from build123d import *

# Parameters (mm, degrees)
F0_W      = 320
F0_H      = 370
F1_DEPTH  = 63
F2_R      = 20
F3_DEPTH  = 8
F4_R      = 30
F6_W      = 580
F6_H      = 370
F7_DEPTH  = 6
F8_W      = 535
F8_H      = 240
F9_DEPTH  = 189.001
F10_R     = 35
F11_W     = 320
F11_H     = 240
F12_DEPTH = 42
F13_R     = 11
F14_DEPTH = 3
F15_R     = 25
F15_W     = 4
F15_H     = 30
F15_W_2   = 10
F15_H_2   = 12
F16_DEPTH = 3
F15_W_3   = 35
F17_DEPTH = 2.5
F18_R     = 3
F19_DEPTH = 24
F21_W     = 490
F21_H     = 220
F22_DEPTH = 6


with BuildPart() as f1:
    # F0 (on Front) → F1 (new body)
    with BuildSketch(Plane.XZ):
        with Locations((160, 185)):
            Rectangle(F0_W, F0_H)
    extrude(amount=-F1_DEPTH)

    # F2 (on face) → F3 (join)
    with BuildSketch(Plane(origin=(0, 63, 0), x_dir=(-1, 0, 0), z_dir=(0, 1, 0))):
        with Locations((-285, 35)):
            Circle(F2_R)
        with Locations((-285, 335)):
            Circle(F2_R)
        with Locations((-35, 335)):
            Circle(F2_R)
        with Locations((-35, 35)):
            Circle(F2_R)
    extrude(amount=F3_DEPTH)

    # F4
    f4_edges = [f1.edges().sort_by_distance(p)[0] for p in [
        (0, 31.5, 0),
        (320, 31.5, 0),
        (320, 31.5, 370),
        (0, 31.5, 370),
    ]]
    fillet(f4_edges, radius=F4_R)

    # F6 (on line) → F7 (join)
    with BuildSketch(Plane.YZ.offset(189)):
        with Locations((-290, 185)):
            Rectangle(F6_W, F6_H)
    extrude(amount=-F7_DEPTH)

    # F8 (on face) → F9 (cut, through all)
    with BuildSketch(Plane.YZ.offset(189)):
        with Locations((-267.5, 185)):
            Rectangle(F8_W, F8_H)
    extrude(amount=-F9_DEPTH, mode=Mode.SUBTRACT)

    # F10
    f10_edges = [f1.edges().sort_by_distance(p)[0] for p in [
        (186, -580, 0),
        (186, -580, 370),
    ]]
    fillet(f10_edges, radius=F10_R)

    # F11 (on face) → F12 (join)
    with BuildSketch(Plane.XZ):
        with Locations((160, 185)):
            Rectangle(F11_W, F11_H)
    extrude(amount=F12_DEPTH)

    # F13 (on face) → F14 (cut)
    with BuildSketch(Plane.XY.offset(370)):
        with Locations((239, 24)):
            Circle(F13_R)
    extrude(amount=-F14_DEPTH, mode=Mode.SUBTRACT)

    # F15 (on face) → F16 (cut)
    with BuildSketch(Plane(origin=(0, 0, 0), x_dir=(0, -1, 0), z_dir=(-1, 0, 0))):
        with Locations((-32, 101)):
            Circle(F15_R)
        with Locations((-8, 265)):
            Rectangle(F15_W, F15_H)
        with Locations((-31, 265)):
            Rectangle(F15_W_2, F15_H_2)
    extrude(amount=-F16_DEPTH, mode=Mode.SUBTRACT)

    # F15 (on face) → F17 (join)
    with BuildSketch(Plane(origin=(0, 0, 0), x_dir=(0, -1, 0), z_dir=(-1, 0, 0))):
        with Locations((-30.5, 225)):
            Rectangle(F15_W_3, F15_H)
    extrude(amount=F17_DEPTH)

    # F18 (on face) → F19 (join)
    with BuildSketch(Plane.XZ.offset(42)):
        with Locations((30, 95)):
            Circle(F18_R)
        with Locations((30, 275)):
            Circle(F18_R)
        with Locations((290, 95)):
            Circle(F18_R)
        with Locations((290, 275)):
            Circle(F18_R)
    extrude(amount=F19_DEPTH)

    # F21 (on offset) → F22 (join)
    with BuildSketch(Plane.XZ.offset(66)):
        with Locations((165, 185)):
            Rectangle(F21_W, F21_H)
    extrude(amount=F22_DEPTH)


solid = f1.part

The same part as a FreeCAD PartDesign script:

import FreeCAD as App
import Part
import Sketcher

V = App.Vector


def edges_at(feature, points):
    """Names of the edges that pass closest to the given points."""
    edges = feature.Shape.Edges
    near = lambda p: min(range(len(edges)), key=lambda i: edges[i].distToShape(Part.Vertex(*p))[0])
    return sorted({f"Edge{near(p) + 1}" for p in points})

doc = App.newDocument("Part")
body = doc.addObject("PartDesign::Body", "Body")

sketch1 = body.newObject("Sketcher::SketchObject", "Sketch")
sketch1.AttachmentSupport = (doc.getObject("XZ_Plane"), [""])
sketch1.MapMode = "FlatFace"
sketch1.addGeometry(Part.LineSegment(V(0, 370, 0), V(0, 0, 0)), False)
sketch1.addGeometry(Part.LineSegment(V(0, 0, 0), V(320, 0, 0)), False)
sketch1.addGeometry(Part.LineSegment(V(320, 0, 0), V(320, 370, 0)), False)
sketch1.addGeometry(Part.LineSegment(V(320, 370, 0), V(0, 370, 0)), False)
sketch1.addConstraint(Sketcher.Constraint("Coincident", 0, 2, 1, 1))
sketch1.addConstraint(Sketcher.Constraint("Coincident", 1, 2, 2, 1))
sketch1.addConstraint(Sketcher.Constraint("Coincident", 2, 2, 3, 1))
sketch1.addConstraint(Sketcher.Constraint("Coincident", 3, 2, 0, 1))
sketch1.addConstraint(Sketcher.Constraint("Vertical", 0))
sketch1.addConstraint(Sketcher.Constraint("Horizontal", 1))
sketch1.addConstraint(Sketcher.Constraint("Vertical", 2))
sketch1.addConstraint(Sketcher.Constraint("Horizontal", 3))
sketch1.addConstraint(Sketcher.Constraint("Coincident", 0, 2, -1, 1))
sketch1.addConstraint(Sketcher.Constraint("DistanceX", 1, 1, 1, 2, 320.0))
sketch1.addConstraint(Sketcher.Constraint("DistanceY", 0, 2, 0, 1, 370.0))
pad1 = body.newObject("PartDesign::Pad", "Pad")
pad1.Profile = sketch1
pad1.Length = 63
pad1.Reversed = True

sketch2 = body.newObject("Sketcher::SketchObject", "Sketch001")
sketch2.AttachmentSupport = (doc.getObject("XZ_Plane"), [""])
sketch2.MapMode = "FlatFace"
sketch2.AttachmentOffset = App.Placement(V(0, 0, -63), App.Rotation())
sketch2.addGeometry(Part.Circle(V(285, 35, 0), V(0, 0, 1), 20), False)
sketch2.addGeometry(Part.Circle(V(285, 335, 0), V(0, 0, 1), 20), False)
sketch2.addGeometry(Part.Circle(V(35, 335, 0), V(0, 0, 1), 20), False)
sketch2.addGeometry(Part.Circle(V(35, 35, 0), V(0, 0, 1), 20), False)
sketch2.addConstraint(Sketcher.Constraint("Equal", 0, 1))
sketch2.addConstraint(Sketcher.Constraint("Equal", 1, 2))
sketch2.addConstraint(Sketcher.Constraint("Equal", 2, 3))
sketch2.addConstraint(Sketcher.Constraint("Horizontal", 1, 3, 2, 3))
sketch2.addConstraint(Sketcher.Constraint("Horizontal", 0, 3, 3, 3))
sketch2.addConstraint(Sketcher.Constraint("Vertical", 0, 3, 1, 3))
sketch2.addConstraint(Sketcher.Constraint("Vertical", 2, 3, 3, 3))
sketch2.addConstraint(Sketcher.Constraint("Diameter", 0, 40.0))
sketch2.addConstraint(Sketcher.Constraint("DistanceX", -1, 1, 0, 3, 285.0))
sketch2.addConstraint(Sketcher.Constraint("DistanceY", -1, 1, 0, 3, 35.0))
sketch2.addConstraint(Sketcher.Constraint("DistanceY", -1, 1, 1, 3, 335.0))
sketch2.addConstraint(Sketcher.Constraint("DistanceX", -1, 1, 2, 3, 35.0))
pad2 = body.newObject("PartDesign::Pad", "Pad001")
pad2.Profile = sketch2
pad2.Length = 8
pad2.Reversed = True
doc.recompute()

fillet = body.newObject("PartDesign::Fillet", "Fillet")
fillet.Base = (pad2, edges_at(pad2, [
    (0, 31.5, 0),
    (320, 31.5, 0),
    (320, 31.5, 370),
    (0, 31.5, 370),
]))
fillet.Radius = 30

sketch3 = body.newObject("Sketcher::SketchObject", "Sketch002")
sketch3.AttachmentSupport = (doc.getObject("YZ_Plane"), [""])
sketch3.MapMode = "FlatFace"
sketch3.AttachmentOffset = App.Placement(V(0, 0, 189), App.Rotation())
sketch3.addGeometry(Part.LineSegment(V(-580, 370, 0), V(-580, 0, 0)), False)
sketch3.addGeometry(Part.LineSegment(V(-580, 0, 0), V(0, 0, 0)), False)
sketch3.addGeometry(Part.LineSegment(V(0, 0, 0), V(0, 370, 0)), False)
sketch3.addGeometry(Part.LineSegment(V(0, 370, 0), V(-580, 370, 0)), False)
sketch3.addConstraint(Sketcher.Constraint("Coincident", 0, 2, 1, 1))
sketch3.addConstraint(Sketcher.Constraint("Coincident", 1, 2, 2, 1))
sketch3.addConstraint(Sketcher.Constraint("Coincident", 2, 2, 3, 1))
sketch3.addConstraint(Sketcher.Constraint("Coincident", 3, 2, 0, 1))
sketch3.addConstraint(Sketcher.Constraint("Vertical", 0))
sketch3.addConstraint(Sketcher.Constraint("Horizontal", 1))
sketch3.addConstraint(Sketcher.Constraint("Vertical", 2))
sketch3.addConstraint(Sketcher.Constraint("Horizontal", 3))
sketch3.addConstraint(Sketcher.Constraint("Coincident", 1, 2, -1, 1))
sketch3.addConstraint(Sketcher.Constraint("DistanceX", 1, 1, 1, 2, 580.0))
sketch3.addConstraint(Sketcher.Constraint("DistanceY", 0, 2, 0, 1, 370.0))
pad3 = body.newObject("PartDesign::Pad", "Pad002")
pad3.Profile = sketch3
pad3.Length = 6
pad3.Reversed = True

sketch4 = body.newObject("Sketcher::SketchObject", "Sketch003")
sketch4.AttachmentSupport = (doc.getObject("YZ_Plane"), [""])
sketch4.MapMode = "FlatFace"
sketch4.AttachmentOffset = App.Placement(V(0, 0, 189), App.Rotation())
sketch4.addGeometry(Part.LineSegment(V(-535, 305, 0), V(-535, 65, 0)), False)
sketch4.addGeometry(Part.LineSegment(V(-535, 65, 0), V(0, 65, 0)), False)
sketch4.addGeometry(Part.LineSegment(V(0, 65, 0), V(0, 305, 0)), False)
sketch4.addGeometry(Part.LineSegment(V(0, 305, 0), V(-535, 305, 0)), False)
sketch4.addConstraint(Sketcher.Constraint("Coincident", 0, 2, 1, 1))
sketch4.addConstraint(Sketcher.Constraint("Coincident", 1, 2, 2, 1))
sketch4.addConstraint(Sketcher.Constraint("Coincident", 2, 2, 3, 1))
sketch4.addConstraint(Sketcher.Constraint("Coincident", 3, 2, 0, 1))
sketch4.addConstraint(Sketcher.Constraint("Vertical", 0))
sketch4.addConstraint(Sketcher.Constraint("Horizontal", 1))
sketch4.addConstraint(Sketcher.Constraint("Vertical", 2))
sketch4.addConstraint(Sketcher.Constraint("Horizontal", 3))
sketch4.addConstraint(Sketcher.Constraint("PointOnObject", 1, 2, -2))
sketch4.addConstraint(Sketcher.Constraint("DistanceX", 1, 1, 1, 2, 535.0))
sketch4.addConstraint(Sketcher.Constraint("DistanceY", 0, 2, 0, 1, 240.0))
sketch4.addConstraint(Sketcher.Constraint("DistanceY", -1, 1, 0, 2, 65.0))
pocket1 = body.newObject("PartDesign::Pocket", "Pocket")
pocket1.Profile = sketch4
pocket1.Type = "ThroughAll"
doc.recompute()

fillet2 = body.newObject("PartDesign::Fillet", "Fillet001")
fillet2.Base = (pocket1, edges_at(pocket1, [(186, -580, 0), (186, -580, 370)]))
fillet2.Radius = 35

sketch5 = body.newObject("Sketcher::SketchObject", "Sketch004")
sketch5.AttachmentSupport = (doc.getObject("XZ_Plane"), [""])
sketch5.MapMode = "FlatFace"
sketch5.addGeometry(Part.LineSegment(V(0, 305, 0), V(0, 65, 0)), False)
sketch5.addGeometry(Part.LineSegment(V(0, 65, 0), V(320, 65, 0)), False)
sketch5.addGeometry(Part.LineSegment(V(320, 65, 0), V(320, 305, 0)), False)
sketch5.addGeometry(Part.LineSegment(V(320, 305, 0), V(0, 305, 0)), False)
sketch5.addConstraint(Sketcher.Constraint("Coincident", 0, 2, 1, 1))
sketch5.addConstraint(Sketcher.Constraint("Coincident", 1, 2, 2, 1))
sketch5.addConstraint(Sketcher.Constraint("Coincident", 2, 2, 3, 1))
sketch5.addConstraint(Sketcher.Constraint("Coincident", 3, 2, 0, 1))
sketch5.addConstraint(Sketcher.Constraint("Vertical", 0))
sketch5.addConstraint(Sketcher.Constraint("Horizontal", 1))
sketch5.addConstraint(Sketcher.Constraint("Vertical", 2))
sketch5.addConstraint(Sketcher.Constraint("Horizontal", 3))
sketch5.addConstraint(Sketcher.Constraint("PointOnObject", 0, 2, -2))
sketch5.addConstraint(Sketcher.Constraint("DistanceX", 1, 1, 1, 2, 320.0))
sketch5.addConstraint(Sketcher.Constraint("DistanceY", 0, 2, 0, 1, 240.0))
sketch5.addConstraint(Sketcher.Constraint("DistanceY", -1, 1, 0, 2, 65.0))
pad4 = body.newObject("PartDesign::Pad", "Pad003")
pad4.Profile = sketch5
pad4.Length = 42

sketch6 = body.newObject("Sketcher::SketchObject", "Sketch005")
sketch6.AttachmentSupport = (doc.getObject("XY_Plane"), [""])
sketch6.MapMode = "FlatFace"
sketch6.AttachmentOffset = App.Placement(V(0, 0, 370), App.Rotation())
sketch6.addGeometry(Part.Circle(V(239, 24, 0), V(0, 0, 1), 11), False)
sketch6.addConstraint(Sketcher.Constraint("Diameter", 0, 22.0))
sketch6.addConstraint(Sketcher.Constraint("DistanceX", -1, 1, 0, 3, 239.0))
sketch6.addConstraint(Sketcher.Constraint("DistanceY", -1, 1, 0, 3, 24.0))
pocket2 = body.newObject("PartDesign::Pocket", "Pocket001")
pocket2.Profile = sketch6
pocket2.Length = 3

sketch7 = body.newObject("Sketcher::SketchObject", "Sketch006")
sketch7.AttachmentSupport = (doc.getObject("YZ_Plane"), [""])
sketch7.MapMode = "FlatFace"
sketch7.addGeometry(Part.Circle(V(32, 101, 0), V(0, 0, 1), 25), False)
sketch7.addGeometry(Part.LineSegment(V(10, 280, 0), V(10, 250, 0)), False)
sketch7.addGeometry(Part.LineSegment(V(10, 250, 0), V(6, 250, 0)), False)
sketch7.addGeometry(Part.LineSegment(V(6, 250, 0), V(6, 280, 0)), False)
sketch7.addGeometry(Part.LineSegment(V(6, 280, 0), V(10, 280, 0)), False)
sketch7.addGeometry(Part.LineSegment(V(36, 271, 0), V(36, 259, 0)), False)
sketch7.addGeometry(Part.LineSegment(V(36, 259, 0), V(26, 259, 0)), False)
sketch7.addGeometry(Part.LineSegment(V(26, 259, 0), V(26, 271, 0)), False)
sketch7.addGeometry(Part.LineSegment(V(26, 271, 0), V(36, 271, 0)), False)
sketch7.addConstraint(Sketcher.Constraint("Coincident", 1, 2, 2, 1))
sketch7.addConstraint(Sketcher.Constraint("Coincident", 2, 2, 3, 1))
sketch7.addConstraint(Sketcher.Constraint("Coincident", 3, 2, 4, 1))
sketch7.addConstraint(Sketcher.Constraint("Coincident", 4, 2, 1, 1))
sketch7.addConstraint(Sketcher.Constraint("Coincident", 5, 2, 6, 1))
sketch7.addConstraint(Sketcher.Constraint("Coincident", 6, 2, 7, 1))
sketch7.addConstraint(Sketcher.Constraint("Coincident", 7, 2, 8, 1))
sketch7.addConstraint(Sketcher.Constraint("Coincident", 8, 2, 5, 1))
sketch7.addConstraint(Sketcher.Constraint("Vertical", 1))
sketch7.addConstraint(Sketcher.Constraint("Horizontal", 2))
sketch7.addConstraint(Sketcher.Constraint("Vertical", 3))
sketch7.addConstraint(Sketcher.Constraint("Horizontal", 4))
sketch7.addConstraint(Sketcher.Constraint("Vertical", 5))
sketch7.addConstraint(Sketcher.Constraint("Horizontal", 6))
sketch7.addConstraint(Sketcher.Constraint("Vertical", 7))
sketch7.addConstraint(Sketcher.Constraint("Horizontal", 8))
sketch7.addConstraint(Sketcher.Constraint("Diameter", 0, 50.0))
sketch7.addConstraint(Sketcher.Constraint("DistanceX", 2, 2, 2, 1, 4.0))
sketch7.addConstraint(Sketcher.Constraint("DistanceX", 6, 2, 6, 1, 10.0))
sketch7.addConstraint(Sketcher.Constraint("DistanceY", 1, 2, 1, 1, 30.0))
sketch7.addConstraint(Sketcher.Constraint("DistanceY", 5, 2, 5, 1, 12.0))
sketch7.addConstraint(Sketcher.Constraint("DistanceX", -1, 1, 0, 3, 32.0))
sketch7.addConstraint(Sketcher.Constraint("DistanceY", -1, 1, 0, 3, 101.0))
sketch7.addConstraint(Sketcher.Constraint("DistanceX", -1, 1, 1, 2, 10.0))
sketch7.addConstraint(Sketcher.Constraint("DistanceY", -1, 1, 1, 2, 250.0))
sketch7.addConstraint(Sketcher.Constraint("DistanceX", -1, 1, 5, 2, 36.0))
sketch7.addConstraint(Sketcher.Constraint("DistanceY", -1, 1, 5, 2, 259.0))
pocket3 = body.newObject("PartDesign::Pocket", "Pocket002")
pocket3.Profile = sketch7
pocket3.Length = 3
pocket3.Reversed = True

sketch8 = body.newObject("Sketcher::SketchObject", "Sketch007")
sketch8.AttachmentSupport = (doc.getObject("YZ_Plane"), [""])
sketch8.MapMode = "FlatFace"
sketch8.addGeometry(Part.LineSegment(V(48, 240, 0), V(48, 210, 0)), False)
sketch8.addGeometry(Part.LineSegment(V(48, 210, 0), V(13, 210, 0)), False)
sketch8.addGeometry(Part.LineSegment(V(13, 210, 0), V(13, 240, 0)), False)
sketch8.addGeometry(Part.LineSegment(V(13, 240, 0), V(48, 240, 0)), False)
sketch8.addConstraint(Sketcher.Constraint("Coincident", 0, 2, 1, 1))
sketch8.addConstraint(Sketcher.Constraint("Coincident", 1, 2, 2, 1))
sketch8.addConstraint(Sketcher.Constraint("Coincident", 2, 2, 3, 1))
sketch8.addConstraint(Sketcher.Constraint("Coincident", 3, 2, 0, 1))
sketch8.addConstraint(Sketcher.Constraint("Vertical", 0))
sketch8.addConstraint(Sketcher.Constraint("Horizontal", 1))
sketch8.addConstraint(Sketcher.Constraint("Vertical", 2))
sketch8.addConstraint(Sketcher.Constraint("Horizontal", 3))
sketch8.addConstraint(Sketcher.Constraint("DistanceX", 1, 2, 1, 1, 35.0))
sketch8.addConstraint(Sketcher.Constraint("DistanceY", 0, 2, 0, 1, 30.0))
sketch8.addConstraint(Sketcher.Constraint("DistanceX", -1, 1, 0, 2, 48.0))
sketch8.addConstraint(Sketcher.Constraint("DistanceY", -1, 1, 0, 2, 210.0))
pad5 = body.newObject("PartDesign::Pad", "Pad004")
pad5.Profile = sketch8
pad5.Length = 2.5
pad5.Reversed = True

sketch9 = body.newObject("Sketcher::SketchObject", "Sketch008")
sketch9.AttachmentSupport = (doc.getObject("XZ_Plane"), [""])
sketch9.MapMode = "FlatFace"
sketch9.AttachmentOffset = App.Placement(V(0, 0, 42), App.Rotation())
sketch9.addGeometry(Part.Circle(V(30, 95, 0), V(0, 0, 1), 3), False)
sketch9.addGeometry(Part.Circle(V(30, 275, 0), V(0, 0, 1), 3), False)
sketch9.addGeometry(Part.Circle(V(290, 95, 0), V(0, 0, 1), 3), False)
sketch9.addGeometry(Part.Circle(V(290, 275, 0), V(0, 0, 1), 3), False)
sketch9.addConstraint(Sketcher.Constraint("Equal", 0, 1))
sketch9.addConstraint(Sketcher.Constraint("Equal", 1, 2))
sketch9.addConstraint(Sketcher.Constraint("Equal", 2, 3))
sketch9.addConstraint(Sketcher.Constraint("Horizontal", 0, 3, 2, 3))
sketch9.addConstraint(Sketcher.Constraint("Horizontal", 1, 3, 3, 3))
sketch9.addConstraint(Sketcher.Constraint("Vertical", 0, 3, 1, 3))
sketch9.addConstraint(Sketcher.Constraint("Vertical", 2, 3, 3, 3))
sketch9.addConstraint(Sketcher.Constraint("Diameter", 0, 6.0))
sketch9.addConstraint(Sketcher.Constraint("DistanceX", -1, 1, 0, 3, 30.0))
sketch9.addConstraint(Sketcher.Constraint("DistanceY", -1, 1, 0, 3, 95.0))
sketch9.addConstraint(Sketcher.Constraint("DistanceY", -1, 1, 1, 3, 275.0))
sketch9.addConstraint(Sketcher.Constraint("DistanceX", -1, 1, 2, 3, 290.0))
pad6 = body.newObject("PartDesign::Pad", "Pad005")
pad6.Profile = sketch9
pad6.Length = 24

sketch10 = body.newObject("Sketcher::SketchObject", "Sketch009")
sketch10.AttachmentSupport = (doc.getObject("XZ_Plane"), [""])
sketch10.MapMode = "FlatFace"
sketch10.AttachmentOffset = App.Placement(V(0, 0, 66), App.Rotation())
sketch10.addGeometry(Part.LineSegment(V(-80, 295, 0), V(-80, 75, 0)), False)
sketch10.addGeometry(Part.LineSegment(V(-80, 75, 0), V(410, 75, 0)), False)
sketch10.addGeometry(Part.LineSegment(V(410, 75, 0), V(410, 295, 0)), False)
sketch10.addGeometry(Part.LineSegment(V(410, 295, 0), V(-80, 295, 0)), False)
sketch10.addConstraint(Sketcher.Constraint("Coincident", 0, 2, 1, 1))
sketch10.addConstraint(Sketcher.Constraint("Coincident", 1, 2, 2, 1))
sketch10.addConstraint(Sketcher.Constraint("Coincident", 2, 2, 3, 1))
sketch10.addConstraint(Sketcher.Constraint("Coincident", 3, 2, 0, 1))
sketch10.addConstraint(Sketcher.Constraint("Vertical", 0))
sketch10.addConstraint(Sketcher.Constraint("Horizontal", 1))
sketch10.addConstraint(Sketcher.Constraint("Vertical", 2))
sketch10.addConstraint(Sketcher.Constraint("Horizontal", 3))
sketch10.addConstraint(Sketcher.Constraint("DistanceX", 1, 1, 1, 2, 490.0))
sketch10.addConstraint(Sketcher.Constraint("DistanceY", 0, 2, 0, 1, 220.0))
sketch10.addConstraint(Sketcher.Constraint("DistanceX", 0, 2, -1, 1, 80.0))
sketch10.addConstraint(Sketcher.Constraint("DistanceY", -1, 1, 0, 2, 75.0))
pad7 = body.newObject("PartDesign::Pad", "Pad006")
pad7.Profile = sketch10
pad7.Length = 6

doc.recompute()
